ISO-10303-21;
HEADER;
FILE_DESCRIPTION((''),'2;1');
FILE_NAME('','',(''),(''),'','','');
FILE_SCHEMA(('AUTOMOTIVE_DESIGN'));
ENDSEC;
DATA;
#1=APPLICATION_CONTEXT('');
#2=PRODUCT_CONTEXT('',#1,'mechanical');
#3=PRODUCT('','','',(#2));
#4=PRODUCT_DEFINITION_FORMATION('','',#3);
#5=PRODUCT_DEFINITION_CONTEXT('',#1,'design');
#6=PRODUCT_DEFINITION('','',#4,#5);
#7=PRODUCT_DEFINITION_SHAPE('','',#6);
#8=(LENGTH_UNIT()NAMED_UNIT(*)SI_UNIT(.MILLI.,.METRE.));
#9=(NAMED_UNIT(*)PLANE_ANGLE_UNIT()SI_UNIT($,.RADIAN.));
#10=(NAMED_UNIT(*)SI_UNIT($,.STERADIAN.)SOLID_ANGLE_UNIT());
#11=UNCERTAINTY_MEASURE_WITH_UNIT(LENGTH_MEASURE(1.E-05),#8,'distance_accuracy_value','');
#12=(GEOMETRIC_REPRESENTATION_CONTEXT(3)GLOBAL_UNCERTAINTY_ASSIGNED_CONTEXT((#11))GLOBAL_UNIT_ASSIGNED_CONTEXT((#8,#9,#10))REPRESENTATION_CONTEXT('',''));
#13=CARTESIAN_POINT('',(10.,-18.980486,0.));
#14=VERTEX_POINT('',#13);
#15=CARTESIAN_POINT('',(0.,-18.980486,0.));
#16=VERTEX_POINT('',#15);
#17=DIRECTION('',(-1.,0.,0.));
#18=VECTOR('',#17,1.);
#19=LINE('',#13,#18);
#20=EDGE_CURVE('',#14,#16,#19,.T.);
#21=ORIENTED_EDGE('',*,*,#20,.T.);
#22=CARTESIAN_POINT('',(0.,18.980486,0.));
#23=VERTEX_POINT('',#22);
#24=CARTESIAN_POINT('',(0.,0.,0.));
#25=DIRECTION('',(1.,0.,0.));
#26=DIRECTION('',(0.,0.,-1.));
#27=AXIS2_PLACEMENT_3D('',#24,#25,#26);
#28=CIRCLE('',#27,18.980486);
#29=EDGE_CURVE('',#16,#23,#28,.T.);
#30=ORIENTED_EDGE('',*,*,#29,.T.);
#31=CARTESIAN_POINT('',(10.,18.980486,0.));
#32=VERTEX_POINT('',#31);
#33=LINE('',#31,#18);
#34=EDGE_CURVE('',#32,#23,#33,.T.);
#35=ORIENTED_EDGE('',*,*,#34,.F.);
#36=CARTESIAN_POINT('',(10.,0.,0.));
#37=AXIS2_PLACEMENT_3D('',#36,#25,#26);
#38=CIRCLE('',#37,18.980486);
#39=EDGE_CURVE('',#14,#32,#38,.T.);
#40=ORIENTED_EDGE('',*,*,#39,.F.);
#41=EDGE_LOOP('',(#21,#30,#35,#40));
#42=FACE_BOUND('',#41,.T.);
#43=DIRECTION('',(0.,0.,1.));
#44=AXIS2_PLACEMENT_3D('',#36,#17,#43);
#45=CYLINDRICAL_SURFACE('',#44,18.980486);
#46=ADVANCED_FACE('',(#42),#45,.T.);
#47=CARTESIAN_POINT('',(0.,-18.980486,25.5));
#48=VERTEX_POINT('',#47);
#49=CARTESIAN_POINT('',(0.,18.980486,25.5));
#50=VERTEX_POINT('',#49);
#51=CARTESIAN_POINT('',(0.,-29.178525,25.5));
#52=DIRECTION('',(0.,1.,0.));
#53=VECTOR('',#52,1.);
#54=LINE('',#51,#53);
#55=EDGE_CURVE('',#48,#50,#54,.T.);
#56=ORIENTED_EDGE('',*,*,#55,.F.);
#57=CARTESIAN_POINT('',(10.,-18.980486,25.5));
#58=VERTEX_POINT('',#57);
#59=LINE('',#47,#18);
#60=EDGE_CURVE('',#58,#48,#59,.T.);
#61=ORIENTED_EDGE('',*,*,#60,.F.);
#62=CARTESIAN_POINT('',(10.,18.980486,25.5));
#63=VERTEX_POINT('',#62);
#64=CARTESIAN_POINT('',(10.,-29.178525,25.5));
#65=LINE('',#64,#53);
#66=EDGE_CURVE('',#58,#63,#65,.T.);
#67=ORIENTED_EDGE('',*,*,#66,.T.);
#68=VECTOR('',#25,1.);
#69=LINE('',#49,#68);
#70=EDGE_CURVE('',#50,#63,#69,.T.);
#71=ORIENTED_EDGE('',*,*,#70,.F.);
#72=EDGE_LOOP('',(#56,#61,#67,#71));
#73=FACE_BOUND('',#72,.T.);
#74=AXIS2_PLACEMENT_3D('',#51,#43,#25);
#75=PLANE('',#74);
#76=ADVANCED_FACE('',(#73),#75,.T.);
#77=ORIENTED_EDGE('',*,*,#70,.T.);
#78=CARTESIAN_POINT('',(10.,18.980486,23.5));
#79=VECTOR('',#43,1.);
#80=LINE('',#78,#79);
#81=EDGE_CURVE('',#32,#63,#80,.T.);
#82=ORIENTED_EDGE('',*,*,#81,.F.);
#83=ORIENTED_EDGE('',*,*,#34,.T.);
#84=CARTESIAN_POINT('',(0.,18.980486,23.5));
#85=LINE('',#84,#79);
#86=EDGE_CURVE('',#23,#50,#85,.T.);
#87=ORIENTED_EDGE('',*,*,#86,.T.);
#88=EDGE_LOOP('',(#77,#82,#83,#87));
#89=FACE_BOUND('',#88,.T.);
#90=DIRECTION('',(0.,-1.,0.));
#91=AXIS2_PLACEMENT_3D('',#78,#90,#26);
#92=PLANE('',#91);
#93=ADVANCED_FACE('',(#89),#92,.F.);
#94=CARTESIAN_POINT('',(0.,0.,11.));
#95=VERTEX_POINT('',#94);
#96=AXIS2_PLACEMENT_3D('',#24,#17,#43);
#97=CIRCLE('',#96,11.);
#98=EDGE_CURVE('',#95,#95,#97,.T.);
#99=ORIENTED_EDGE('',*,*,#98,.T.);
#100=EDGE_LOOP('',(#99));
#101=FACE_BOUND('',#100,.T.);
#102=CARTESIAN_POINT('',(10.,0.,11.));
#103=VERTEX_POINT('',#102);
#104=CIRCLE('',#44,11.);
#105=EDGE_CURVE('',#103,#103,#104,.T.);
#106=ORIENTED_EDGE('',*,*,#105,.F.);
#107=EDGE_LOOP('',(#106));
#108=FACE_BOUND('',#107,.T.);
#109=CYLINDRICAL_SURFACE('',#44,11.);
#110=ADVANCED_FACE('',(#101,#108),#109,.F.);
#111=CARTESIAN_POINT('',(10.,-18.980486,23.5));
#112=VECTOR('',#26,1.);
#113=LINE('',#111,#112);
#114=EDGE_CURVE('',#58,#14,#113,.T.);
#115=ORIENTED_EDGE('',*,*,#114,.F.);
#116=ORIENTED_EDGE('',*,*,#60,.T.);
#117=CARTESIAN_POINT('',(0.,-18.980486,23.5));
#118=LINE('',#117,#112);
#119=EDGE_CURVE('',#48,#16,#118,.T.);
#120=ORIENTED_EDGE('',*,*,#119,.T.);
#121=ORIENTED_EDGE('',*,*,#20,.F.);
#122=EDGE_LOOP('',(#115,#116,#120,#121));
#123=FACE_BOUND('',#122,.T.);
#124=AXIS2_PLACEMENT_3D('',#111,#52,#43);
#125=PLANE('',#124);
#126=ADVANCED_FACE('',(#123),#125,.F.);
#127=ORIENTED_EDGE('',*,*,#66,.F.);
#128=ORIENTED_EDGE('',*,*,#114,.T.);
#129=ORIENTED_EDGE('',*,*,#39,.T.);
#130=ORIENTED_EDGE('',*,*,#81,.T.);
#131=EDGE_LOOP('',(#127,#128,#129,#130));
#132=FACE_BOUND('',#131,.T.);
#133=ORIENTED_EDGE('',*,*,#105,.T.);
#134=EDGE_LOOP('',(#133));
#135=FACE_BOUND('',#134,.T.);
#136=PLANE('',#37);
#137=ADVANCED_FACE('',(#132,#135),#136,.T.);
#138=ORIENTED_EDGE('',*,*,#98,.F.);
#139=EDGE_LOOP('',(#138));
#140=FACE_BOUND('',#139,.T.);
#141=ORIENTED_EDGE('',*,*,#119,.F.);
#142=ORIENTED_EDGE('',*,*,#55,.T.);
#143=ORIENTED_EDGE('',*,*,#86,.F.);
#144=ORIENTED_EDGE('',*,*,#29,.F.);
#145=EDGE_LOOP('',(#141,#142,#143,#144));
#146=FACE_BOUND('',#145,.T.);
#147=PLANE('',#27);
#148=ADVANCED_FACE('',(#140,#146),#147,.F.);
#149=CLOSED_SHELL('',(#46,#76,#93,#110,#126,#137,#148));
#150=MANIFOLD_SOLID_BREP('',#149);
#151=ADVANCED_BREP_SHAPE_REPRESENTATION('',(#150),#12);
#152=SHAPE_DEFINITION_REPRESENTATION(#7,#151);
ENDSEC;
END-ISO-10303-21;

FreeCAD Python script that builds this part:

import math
import FreeCAD as App
import Part
import Sketcher
Q = App.Units.Quantity


def add_polygon(sketch, points):
    """Adds a closed chain of lines whose ends are joined by coincident constraints."""
    first, n = sketch.GeometryCount, len(points)
    for a, b in zip(points, points[1:] + points[:1]):
        sketch.addGeometry(Part.LineSegment(App.Vector(*a, 0), App.Vector(*b, 0)), False)
    for i in range(n):
        sketch.addConstraint(Sketcher.Constraint("Coincident", first + i, 2, first + (i + 1) % n, 1))

doc = App.newDocument("Part")
params = doc.addObject("Spreadsheet::Sheet", "Params")
for row, (alias, value) in enumerate([
    ("sketch1_height", "23.5 mm"),
    ("pad1_length", "10 mm"),
    ("sketch2_diameter", "22 mm"),
    ("pocket1_length", "10 mm"),
    ("sketch3_width", "10 mm"),
    ("sketch3_height", "2 mm"),
    ("pad2_length", "37.960973 mm"),
], start=1):
    params.set(f"A{row}", alias)
    params.set(f"B{row}", "=" + value)
    params.setAlias(f"B{row}", alias)

body = doc.addObject("PartDesign::Body", "Body")

# Sketch on YZ plane
sketch1 = body.newObject("Sketcher::SketchObject", "Sketch")
sketch1.AttachmentSupport = (doc.getObject("YZ_Plane"), [""])
sketch1.MapMode = "FlatFace"
sketch1.addGeometry(Part.LineSegment(App.Vector(19, 0, 0), App.Vector(19, 24, 0)), False)
sketch1.addGeometry(Part.LineSegment(App.Vector(19, 24, 0), App.Vector(-19, 24, 0)), False)
sketch1.addGeometry(Part.LineSegment(App.Vector(-19, 24, 0), App.Vector(-19, 0, 0)), False)
sketch1.addGeometry(Part.ArcOfCircle(Part.Circle(App.Vector(0, 0, 0), App.Vector(0, 0, 1), 19), math.radians(180), math.radians(360)), False)
sketch1.addConstraint(Sketcher.Constraint("Coincident", 0, 2, 1, 1))
sketch1.addConstraint(Sketcher.Constraint("Coincident", 1, 2, 2, 1))
sketch1.addConstraint(Sketcher.Constraint("Tangent", 2, 2, 3, 1))
sketch1.addConstraint(Sketcher.Constraint("Tangent", 3, 2, 0, 1))
sketch1.addConstraint(Sketcher.Constraint("Vertical", 0))
sketch1.addConstraint(Sketcher.Constraint("Horizontal", 1))
sketch1.addConstraint(Sketcher.Constraint("Vertical", 2))
sketch1.addConstraint(Sketcher.Constraint("Coincident", 3, 3, -1, 1))
sketch1.addConstraint(Sketcher.Constraint("DistanceY", 0, 1, 0, 2, Q("23.5 mm")))
sketch1.addConstraint(Sketcher.Constraint("Radius", 3, Q("18.980486 mm")))
sketch1.setExpression("Constraints[8]", "Params.sketch1_height")
pad1 = body.newObject("PartDesign::Pad", "Pad")
pad1.Profile = sketch1
pad1.setExpression("Length", "Params.pad1_length")

# Sketch on YZ plane
sketch2 = body.newObject("Sketcher::SketchObject", "Sketch001")
sketch2.AttachmentSupport = (doc.getObject("YZ_Plane"), [""])
sketch2.MapMode = "FlatFace"
sketch2.addGeometry(Part.Circle(App.Vector(0, 0, 0), App.Vector(0, 0, 1), 11), False)
sketch2.addConstraint(Sketcher.Constraint("Coincident", 0, 3, -1, 1))
sketch2.addConstraint(Sketcher.Constraint("Diameter", 0, Q("22 mm")))
sketch2.setExpression("Constraints[1]", "Params.sketch2_diameter")
pocket1 = body.newObject("PartDesign::Pocket", "Pocket")
pocket1.Profile = sketch2
pocket1.setExpression("Length", "Params.pocket1_length")
pocket1.Reversed = True

# Sketch on XZ plane
sketch3 = body.newObject("Sketcher::SketchObject", "Sketch002")
sketch3.AttachmentSupport = (doc.getObject("XZ_Plane"), [""])
sketch3.MapMode = "FlatFace"
sketch3.AttachmentOffset = App.Placement(App.Vector(0, 0, 18.980487), App.Rotation())
add_polygon(sketch3, [(0, 23.5), (0, 25.5), (10, 25.5), (10, 23.5)])  # lines 0-3
sketch3.addConstraint(Sketcher.Constraint("Vertical", 0))
sketch3.addConstraint(Sketcher.Constraint("Horizontal", 1))
sketch3.addConstraint(Sketcher.Constraint("Vertical", 2))
sketch3.addConstraint(Sketcher.Constraint("Horizontal", 3))
sketch3.addConstraint(Sketcher.Constraint("PointOnObject", 0, 2, -2))
sketch3.addConstraint(Sketcher.Constraint("DistanceX", 1, 1, 1, 2, Q("10 mm")))
sketch3.addConstraint(Sketcher.Constraint("DistanceY", 0, 1, 0, 2, Q("2 mm")))
sketch3.addConstraint(Sketcher.Constraint("DistanceY", -1, 1, 0, 2, Q("25.5 mm")))
sketch3.setExpression("Constraints[9]", "Params.sketch3_width")
sketch3.setExpression("Constraints[10]", "Params.sketch3_height")
pad2 = body.newObject("PartDesign::Pad", "Pad001")
pad2.Profile = sketch3
pad2.setExpression("Length", "Params.pad2_length")
pad2.Reversed = True

doc.recompute()
